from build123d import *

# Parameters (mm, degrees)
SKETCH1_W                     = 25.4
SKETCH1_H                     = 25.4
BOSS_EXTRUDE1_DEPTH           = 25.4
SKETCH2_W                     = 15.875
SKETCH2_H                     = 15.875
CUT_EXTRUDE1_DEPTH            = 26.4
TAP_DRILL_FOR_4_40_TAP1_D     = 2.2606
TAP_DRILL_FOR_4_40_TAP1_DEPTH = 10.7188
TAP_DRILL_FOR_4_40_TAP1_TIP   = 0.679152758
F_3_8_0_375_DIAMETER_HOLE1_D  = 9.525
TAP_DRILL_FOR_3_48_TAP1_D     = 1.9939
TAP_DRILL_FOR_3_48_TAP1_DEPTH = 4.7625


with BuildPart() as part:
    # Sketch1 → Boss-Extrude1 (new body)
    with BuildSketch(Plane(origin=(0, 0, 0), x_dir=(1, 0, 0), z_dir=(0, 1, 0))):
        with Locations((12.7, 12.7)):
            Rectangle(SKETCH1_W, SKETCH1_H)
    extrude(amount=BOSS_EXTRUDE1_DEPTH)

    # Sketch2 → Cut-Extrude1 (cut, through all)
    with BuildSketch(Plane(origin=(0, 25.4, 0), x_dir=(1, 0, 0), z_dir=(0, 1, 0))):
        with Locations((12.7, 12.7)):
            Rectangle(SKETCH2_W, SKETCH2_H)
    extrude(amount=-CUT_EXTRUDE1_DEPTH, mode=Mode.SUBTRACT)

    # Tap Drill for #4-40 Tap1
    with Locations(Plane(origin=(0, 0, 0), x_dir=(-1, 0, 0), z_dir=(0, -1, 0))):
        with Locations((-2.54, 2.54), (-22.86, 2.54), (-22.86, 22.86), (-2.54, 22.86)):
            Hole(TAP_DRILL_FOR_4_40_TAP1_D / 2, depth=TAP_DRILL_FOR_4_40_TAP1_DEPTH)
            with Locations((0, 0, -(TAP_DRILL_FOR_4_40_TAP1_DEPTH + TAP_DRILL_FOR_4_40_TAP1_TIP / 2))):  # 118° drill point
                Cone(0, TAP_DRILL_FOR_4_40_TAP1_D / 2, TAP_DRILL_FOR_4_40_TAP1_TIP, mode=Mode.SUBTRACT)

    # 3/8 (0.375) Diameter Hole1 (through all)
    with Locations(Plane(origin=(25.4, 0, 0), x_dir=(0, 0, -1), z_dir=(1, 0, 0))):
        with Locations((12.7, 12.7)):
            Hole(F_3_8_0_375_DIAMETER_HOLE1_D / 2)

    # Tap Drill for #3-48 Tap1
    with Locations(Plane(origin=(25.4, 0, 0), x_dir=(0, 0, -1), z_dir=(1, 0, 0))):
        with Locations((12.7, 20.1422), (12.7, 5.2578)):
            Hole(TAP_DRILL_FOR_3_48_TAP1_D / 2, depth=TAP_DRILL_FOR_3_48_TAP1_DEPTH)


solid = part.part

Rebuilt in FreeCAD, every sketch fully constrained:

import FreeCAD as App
import Part
import Sketcher

V = App.Vector
Q = App.Units.Quantity

doc = App.newDocument("Part")
body = doc.addObject("PartDesign::Body", "Body")

sketch1 = body.newObject("Sketcher::SketchObject", "Sketch")
sketch1.AttachmentSupport = (doc.getObject("XZ_Plane"), [""])
sketch1.MapMode = "FlatFace"
sketch1.addGeometry([
    Part.LineSegment(V(0, -25, 0), V(0, 0, 0)),
    Part.LineSegment(V(0, 0, 0), V(25, 0, 0)),
    Part.LineSegment(V(25, 0, 0), V(25, -25, 0)),
    Part.LineSegment(V(25, -25, 0), V(0, -25, 0)),
], False)
sketch1.addConstraint([
    Sketcher.Constraint("Coincident", 0, 2, 1, 1),
    Sketcher.Constraint("Coincident", 1, 2, 2, 1),
    Sketcher.Constraint("Coincident", 2, 2, 3, 1),
    Sketcher.Constraint("Coincident", 3, 2, 0, 1),
    Sketcher.Constraint("Vertical", 0),
    Sketcher.Constraint("Horizontal", 1),
    Sketcher.Constraint("Vertical", 2),
    Sketcher.Constraint("Horizontal", 3),
    Sketcher.Constraint("Coincident", 0, 2, -1, 1),
    Sketcher.Constraint("Equal", 3, 0),
    Sketcher.Constraint("DistanceX", 1, 1, 1, 2, Q("1 in")),
])
pad1 = body.newObject("PartDesign::Pad", "Pad")
pad1.Profile = sketch1
pad1.Length = Q("1 in")
pad1.Reversed = True

sketch2 = body.newObject("Sketcher::SketchObject", "Sketch001")
sketch2.AttachmentSupport = (doc.getObject("XZ_Plane"), [""])
sketch2.MapMode = "FlatFace"
sketch2.AttachmentOffset = App.Placement(V(0, 0, -1 * 25.4), App.Rotation())
sketch2.addGeometry([
    Part.LineSegment(V(5, -21, 0), V(5, -5, 0)),
    Part.LineSegment(V(5, -5, 0), V(21, -5, 0)),
    Part.LineSegment(V(21, -5, 0), V(21, -21, 0)),
    Part.LineSegment(V(21, -21, 0), V(5, -21, 0)),
], False)
sketch2.addConstraint([
    Sketcher.Constraint("Coincident", 0, 2, 1, 1),
    Sketcher.Constraint("Coincident", 1, 2, 2, 1),
    Sketcher.Constraint("Coincident", 2, 2, 3, 1),
    Sketcher.Constraint("Coincident", 3, 2, 0, 1),
    Sketcher.Constraint("Vertical", 0),
    Sketcher.Constraint("Horizontal", 1),
    Sketcher.Constraint("Vertical", 2),
    Sketcher.Constraint("Horizontal", 3),
    Sketcher.Constraint("Equal", 3, 0),
    Sketcher.Constraint("DistanceX", 1, 1, 1, 2, Q("0.625 in")),
    Sketcher.Constraint("DistanceX", -1, 1, 0, 2, Q("0.1875 in")),
    Sketcher.Constraint("DistanceY", 0, 2, -1, 1, Q("0.1875 in")),
])
pocket1 = body.newObject("PartDesign::Pocket", "Pocket")
pocket1.Profile = sketch2
pocket1.Type = "ThroughAll"
pocket1.Reversed = True

sketch3 = body.newObject("Sketcher::SketchObject", "Sketch002")
sketch3.AttachmentSupport = (doc.getObject("XZ_Plane"), [""])
sketch3.MapMode = "FlatFace"
sketch3.addGeometry([
    Part.Circle(V(2.5, -2.5, 0), V(0, 0, 1), 1.1),
    Part.Circle(V(22.9, -2.5, 0), V(0, 0, 1), 1.1),
    Part.Circle(V(22.9, -22.9, 0), V(0, 0, 1), 1.1),
    Part.Circle(V(2.5, -22.9, 0), V(0, 0, 1), 1.1),
], False)
sketch3.addConstraint([
    Sketcher.Constraint("Equal", 0, 1),
    Sketcher.Constraint("Equal", 1, 2),
    Sketcher.Constraint("Equal", 2, 3),
    Sketcher.Constraint("Horizontal", 0, 3, 1, 3),
    Sketcher.Constraint("Horizontal", 2, 3, 3, 3),
    Sketcher.Constraint("Vertical", 1, 3, 2, 3),
    Sketcher.Constraint("Vertical", 0, 3, 3, 3),
    Sketcher.Constraint("Diameter", 0, Q("0.089 in")),
    Sketcher.Constraint("DistanceX", -1, 1, 0, 3, Q("0.1 in")),
    Sketcher.Constraint("DistanceY", 0, 3, -1, 1, Q("0.1 in")),
    Sketcher.Constraint("DistanceX", -1, 1, 1, 3, Q("0.9 in")),
    Sketcher.Constraint("DistanceY", 2, 3, -1, 1, Q("0.9 in")),
])
doc.recompute()
hole = body.newObject("PartDesign::Hole", "Hole")
hole.Profile = sketch3
hole.ThreadType = "None"
hole.Diameter = Q("0.089 in")
hole.DepthType = "Dimension"
hole.Depth = Q("0.422 in")
hole.DrillPoint = "Angled"
hole.DrillPointAngle = 118

sketch4 = body.newObject("Sketcher::SketchObject", "Sketch003")
sketch4.AttachmentSupport = (doc.getObject("YZ_Plane"), [""])
sketch4.MapMode = "FlatFace"
sketch4.AttachmentOffset = App.Placement(V(0, 0, 1 * 25.4), App.Rotation())
sketch4.addGeometry(Part.Circle(V(12.7, -12.7, 0), V(0, 0, 1), 4.8), False)
sketch4.addConstraint([
    Sketcher.Constraint("Diameter", 0, Q("0.375 in")),
    Sketcher.Constraint("DistanceX", -1, 1, 0, 3, Q("0.5 in")),
    Sketcher.Constraint("DistanceY", 0, 3, -1, 1, Q("0.5 in")),
])
doc.recompute()
hole2 = body.newObject("PartDesign::Hole", "Hole001")
hole2.Profile = sketch4
hole2.ThreadType = "None"
hole2.Diameter = Q("0.375 in")
hole2.DepthType = "ThroughAll"

sketch5 = body.newObject("Sketcher::SketchObject", "Sketch004")
sketch5.AttachmentSupport = (doc.getObject("YZ_Plane"), [""])
sketch5.MapMode = "FlatFace"
sketch5.AttachmentOffset = App.Placement(V(0, 0, 1 * 25.4), App.Rotation())
sketch5.addGeometry([
    Part.Circle(V(20.1, -12.7, 0), V(0, 0, 1), 1),
    Part.Circle(V(5.3, -12.7, 0), V(0, 0, 1), 1),
], False)
sketch5.addConstraint([
    Sketcher.Constraint("Equal", 0, 1),
    Sketcher.Constraint("Horizontal", 0, 3, 1, 3),
    Sketcher.Constraint("Diameter", 0, Q("0.0785 in")),
    Sketcher.Constraint("DistanceY", 0, 3, -1, 1, Q("0.5 in")),
    Sketcher.Constraint("DistanceX", -1, 1, 0, 3, Q("0.793 in")),
    Sketcher.Constraint("DistanceX", -1, 1, 1, 3, Q("0.207 in")),
])
doc.recompute()
hole3 = body.newObject("PartDesign::Hole", "Hole002")
hole3.Profile = sketch5
hole3.ThreadType = "None"
hole3.Diameter = Q("0.0785 in")
hole3.DepthType = "Dimension"
hole3.Depth = Q("0.1875 in")
hole3.DrillPoint = "Flat"

doc.recompute()
